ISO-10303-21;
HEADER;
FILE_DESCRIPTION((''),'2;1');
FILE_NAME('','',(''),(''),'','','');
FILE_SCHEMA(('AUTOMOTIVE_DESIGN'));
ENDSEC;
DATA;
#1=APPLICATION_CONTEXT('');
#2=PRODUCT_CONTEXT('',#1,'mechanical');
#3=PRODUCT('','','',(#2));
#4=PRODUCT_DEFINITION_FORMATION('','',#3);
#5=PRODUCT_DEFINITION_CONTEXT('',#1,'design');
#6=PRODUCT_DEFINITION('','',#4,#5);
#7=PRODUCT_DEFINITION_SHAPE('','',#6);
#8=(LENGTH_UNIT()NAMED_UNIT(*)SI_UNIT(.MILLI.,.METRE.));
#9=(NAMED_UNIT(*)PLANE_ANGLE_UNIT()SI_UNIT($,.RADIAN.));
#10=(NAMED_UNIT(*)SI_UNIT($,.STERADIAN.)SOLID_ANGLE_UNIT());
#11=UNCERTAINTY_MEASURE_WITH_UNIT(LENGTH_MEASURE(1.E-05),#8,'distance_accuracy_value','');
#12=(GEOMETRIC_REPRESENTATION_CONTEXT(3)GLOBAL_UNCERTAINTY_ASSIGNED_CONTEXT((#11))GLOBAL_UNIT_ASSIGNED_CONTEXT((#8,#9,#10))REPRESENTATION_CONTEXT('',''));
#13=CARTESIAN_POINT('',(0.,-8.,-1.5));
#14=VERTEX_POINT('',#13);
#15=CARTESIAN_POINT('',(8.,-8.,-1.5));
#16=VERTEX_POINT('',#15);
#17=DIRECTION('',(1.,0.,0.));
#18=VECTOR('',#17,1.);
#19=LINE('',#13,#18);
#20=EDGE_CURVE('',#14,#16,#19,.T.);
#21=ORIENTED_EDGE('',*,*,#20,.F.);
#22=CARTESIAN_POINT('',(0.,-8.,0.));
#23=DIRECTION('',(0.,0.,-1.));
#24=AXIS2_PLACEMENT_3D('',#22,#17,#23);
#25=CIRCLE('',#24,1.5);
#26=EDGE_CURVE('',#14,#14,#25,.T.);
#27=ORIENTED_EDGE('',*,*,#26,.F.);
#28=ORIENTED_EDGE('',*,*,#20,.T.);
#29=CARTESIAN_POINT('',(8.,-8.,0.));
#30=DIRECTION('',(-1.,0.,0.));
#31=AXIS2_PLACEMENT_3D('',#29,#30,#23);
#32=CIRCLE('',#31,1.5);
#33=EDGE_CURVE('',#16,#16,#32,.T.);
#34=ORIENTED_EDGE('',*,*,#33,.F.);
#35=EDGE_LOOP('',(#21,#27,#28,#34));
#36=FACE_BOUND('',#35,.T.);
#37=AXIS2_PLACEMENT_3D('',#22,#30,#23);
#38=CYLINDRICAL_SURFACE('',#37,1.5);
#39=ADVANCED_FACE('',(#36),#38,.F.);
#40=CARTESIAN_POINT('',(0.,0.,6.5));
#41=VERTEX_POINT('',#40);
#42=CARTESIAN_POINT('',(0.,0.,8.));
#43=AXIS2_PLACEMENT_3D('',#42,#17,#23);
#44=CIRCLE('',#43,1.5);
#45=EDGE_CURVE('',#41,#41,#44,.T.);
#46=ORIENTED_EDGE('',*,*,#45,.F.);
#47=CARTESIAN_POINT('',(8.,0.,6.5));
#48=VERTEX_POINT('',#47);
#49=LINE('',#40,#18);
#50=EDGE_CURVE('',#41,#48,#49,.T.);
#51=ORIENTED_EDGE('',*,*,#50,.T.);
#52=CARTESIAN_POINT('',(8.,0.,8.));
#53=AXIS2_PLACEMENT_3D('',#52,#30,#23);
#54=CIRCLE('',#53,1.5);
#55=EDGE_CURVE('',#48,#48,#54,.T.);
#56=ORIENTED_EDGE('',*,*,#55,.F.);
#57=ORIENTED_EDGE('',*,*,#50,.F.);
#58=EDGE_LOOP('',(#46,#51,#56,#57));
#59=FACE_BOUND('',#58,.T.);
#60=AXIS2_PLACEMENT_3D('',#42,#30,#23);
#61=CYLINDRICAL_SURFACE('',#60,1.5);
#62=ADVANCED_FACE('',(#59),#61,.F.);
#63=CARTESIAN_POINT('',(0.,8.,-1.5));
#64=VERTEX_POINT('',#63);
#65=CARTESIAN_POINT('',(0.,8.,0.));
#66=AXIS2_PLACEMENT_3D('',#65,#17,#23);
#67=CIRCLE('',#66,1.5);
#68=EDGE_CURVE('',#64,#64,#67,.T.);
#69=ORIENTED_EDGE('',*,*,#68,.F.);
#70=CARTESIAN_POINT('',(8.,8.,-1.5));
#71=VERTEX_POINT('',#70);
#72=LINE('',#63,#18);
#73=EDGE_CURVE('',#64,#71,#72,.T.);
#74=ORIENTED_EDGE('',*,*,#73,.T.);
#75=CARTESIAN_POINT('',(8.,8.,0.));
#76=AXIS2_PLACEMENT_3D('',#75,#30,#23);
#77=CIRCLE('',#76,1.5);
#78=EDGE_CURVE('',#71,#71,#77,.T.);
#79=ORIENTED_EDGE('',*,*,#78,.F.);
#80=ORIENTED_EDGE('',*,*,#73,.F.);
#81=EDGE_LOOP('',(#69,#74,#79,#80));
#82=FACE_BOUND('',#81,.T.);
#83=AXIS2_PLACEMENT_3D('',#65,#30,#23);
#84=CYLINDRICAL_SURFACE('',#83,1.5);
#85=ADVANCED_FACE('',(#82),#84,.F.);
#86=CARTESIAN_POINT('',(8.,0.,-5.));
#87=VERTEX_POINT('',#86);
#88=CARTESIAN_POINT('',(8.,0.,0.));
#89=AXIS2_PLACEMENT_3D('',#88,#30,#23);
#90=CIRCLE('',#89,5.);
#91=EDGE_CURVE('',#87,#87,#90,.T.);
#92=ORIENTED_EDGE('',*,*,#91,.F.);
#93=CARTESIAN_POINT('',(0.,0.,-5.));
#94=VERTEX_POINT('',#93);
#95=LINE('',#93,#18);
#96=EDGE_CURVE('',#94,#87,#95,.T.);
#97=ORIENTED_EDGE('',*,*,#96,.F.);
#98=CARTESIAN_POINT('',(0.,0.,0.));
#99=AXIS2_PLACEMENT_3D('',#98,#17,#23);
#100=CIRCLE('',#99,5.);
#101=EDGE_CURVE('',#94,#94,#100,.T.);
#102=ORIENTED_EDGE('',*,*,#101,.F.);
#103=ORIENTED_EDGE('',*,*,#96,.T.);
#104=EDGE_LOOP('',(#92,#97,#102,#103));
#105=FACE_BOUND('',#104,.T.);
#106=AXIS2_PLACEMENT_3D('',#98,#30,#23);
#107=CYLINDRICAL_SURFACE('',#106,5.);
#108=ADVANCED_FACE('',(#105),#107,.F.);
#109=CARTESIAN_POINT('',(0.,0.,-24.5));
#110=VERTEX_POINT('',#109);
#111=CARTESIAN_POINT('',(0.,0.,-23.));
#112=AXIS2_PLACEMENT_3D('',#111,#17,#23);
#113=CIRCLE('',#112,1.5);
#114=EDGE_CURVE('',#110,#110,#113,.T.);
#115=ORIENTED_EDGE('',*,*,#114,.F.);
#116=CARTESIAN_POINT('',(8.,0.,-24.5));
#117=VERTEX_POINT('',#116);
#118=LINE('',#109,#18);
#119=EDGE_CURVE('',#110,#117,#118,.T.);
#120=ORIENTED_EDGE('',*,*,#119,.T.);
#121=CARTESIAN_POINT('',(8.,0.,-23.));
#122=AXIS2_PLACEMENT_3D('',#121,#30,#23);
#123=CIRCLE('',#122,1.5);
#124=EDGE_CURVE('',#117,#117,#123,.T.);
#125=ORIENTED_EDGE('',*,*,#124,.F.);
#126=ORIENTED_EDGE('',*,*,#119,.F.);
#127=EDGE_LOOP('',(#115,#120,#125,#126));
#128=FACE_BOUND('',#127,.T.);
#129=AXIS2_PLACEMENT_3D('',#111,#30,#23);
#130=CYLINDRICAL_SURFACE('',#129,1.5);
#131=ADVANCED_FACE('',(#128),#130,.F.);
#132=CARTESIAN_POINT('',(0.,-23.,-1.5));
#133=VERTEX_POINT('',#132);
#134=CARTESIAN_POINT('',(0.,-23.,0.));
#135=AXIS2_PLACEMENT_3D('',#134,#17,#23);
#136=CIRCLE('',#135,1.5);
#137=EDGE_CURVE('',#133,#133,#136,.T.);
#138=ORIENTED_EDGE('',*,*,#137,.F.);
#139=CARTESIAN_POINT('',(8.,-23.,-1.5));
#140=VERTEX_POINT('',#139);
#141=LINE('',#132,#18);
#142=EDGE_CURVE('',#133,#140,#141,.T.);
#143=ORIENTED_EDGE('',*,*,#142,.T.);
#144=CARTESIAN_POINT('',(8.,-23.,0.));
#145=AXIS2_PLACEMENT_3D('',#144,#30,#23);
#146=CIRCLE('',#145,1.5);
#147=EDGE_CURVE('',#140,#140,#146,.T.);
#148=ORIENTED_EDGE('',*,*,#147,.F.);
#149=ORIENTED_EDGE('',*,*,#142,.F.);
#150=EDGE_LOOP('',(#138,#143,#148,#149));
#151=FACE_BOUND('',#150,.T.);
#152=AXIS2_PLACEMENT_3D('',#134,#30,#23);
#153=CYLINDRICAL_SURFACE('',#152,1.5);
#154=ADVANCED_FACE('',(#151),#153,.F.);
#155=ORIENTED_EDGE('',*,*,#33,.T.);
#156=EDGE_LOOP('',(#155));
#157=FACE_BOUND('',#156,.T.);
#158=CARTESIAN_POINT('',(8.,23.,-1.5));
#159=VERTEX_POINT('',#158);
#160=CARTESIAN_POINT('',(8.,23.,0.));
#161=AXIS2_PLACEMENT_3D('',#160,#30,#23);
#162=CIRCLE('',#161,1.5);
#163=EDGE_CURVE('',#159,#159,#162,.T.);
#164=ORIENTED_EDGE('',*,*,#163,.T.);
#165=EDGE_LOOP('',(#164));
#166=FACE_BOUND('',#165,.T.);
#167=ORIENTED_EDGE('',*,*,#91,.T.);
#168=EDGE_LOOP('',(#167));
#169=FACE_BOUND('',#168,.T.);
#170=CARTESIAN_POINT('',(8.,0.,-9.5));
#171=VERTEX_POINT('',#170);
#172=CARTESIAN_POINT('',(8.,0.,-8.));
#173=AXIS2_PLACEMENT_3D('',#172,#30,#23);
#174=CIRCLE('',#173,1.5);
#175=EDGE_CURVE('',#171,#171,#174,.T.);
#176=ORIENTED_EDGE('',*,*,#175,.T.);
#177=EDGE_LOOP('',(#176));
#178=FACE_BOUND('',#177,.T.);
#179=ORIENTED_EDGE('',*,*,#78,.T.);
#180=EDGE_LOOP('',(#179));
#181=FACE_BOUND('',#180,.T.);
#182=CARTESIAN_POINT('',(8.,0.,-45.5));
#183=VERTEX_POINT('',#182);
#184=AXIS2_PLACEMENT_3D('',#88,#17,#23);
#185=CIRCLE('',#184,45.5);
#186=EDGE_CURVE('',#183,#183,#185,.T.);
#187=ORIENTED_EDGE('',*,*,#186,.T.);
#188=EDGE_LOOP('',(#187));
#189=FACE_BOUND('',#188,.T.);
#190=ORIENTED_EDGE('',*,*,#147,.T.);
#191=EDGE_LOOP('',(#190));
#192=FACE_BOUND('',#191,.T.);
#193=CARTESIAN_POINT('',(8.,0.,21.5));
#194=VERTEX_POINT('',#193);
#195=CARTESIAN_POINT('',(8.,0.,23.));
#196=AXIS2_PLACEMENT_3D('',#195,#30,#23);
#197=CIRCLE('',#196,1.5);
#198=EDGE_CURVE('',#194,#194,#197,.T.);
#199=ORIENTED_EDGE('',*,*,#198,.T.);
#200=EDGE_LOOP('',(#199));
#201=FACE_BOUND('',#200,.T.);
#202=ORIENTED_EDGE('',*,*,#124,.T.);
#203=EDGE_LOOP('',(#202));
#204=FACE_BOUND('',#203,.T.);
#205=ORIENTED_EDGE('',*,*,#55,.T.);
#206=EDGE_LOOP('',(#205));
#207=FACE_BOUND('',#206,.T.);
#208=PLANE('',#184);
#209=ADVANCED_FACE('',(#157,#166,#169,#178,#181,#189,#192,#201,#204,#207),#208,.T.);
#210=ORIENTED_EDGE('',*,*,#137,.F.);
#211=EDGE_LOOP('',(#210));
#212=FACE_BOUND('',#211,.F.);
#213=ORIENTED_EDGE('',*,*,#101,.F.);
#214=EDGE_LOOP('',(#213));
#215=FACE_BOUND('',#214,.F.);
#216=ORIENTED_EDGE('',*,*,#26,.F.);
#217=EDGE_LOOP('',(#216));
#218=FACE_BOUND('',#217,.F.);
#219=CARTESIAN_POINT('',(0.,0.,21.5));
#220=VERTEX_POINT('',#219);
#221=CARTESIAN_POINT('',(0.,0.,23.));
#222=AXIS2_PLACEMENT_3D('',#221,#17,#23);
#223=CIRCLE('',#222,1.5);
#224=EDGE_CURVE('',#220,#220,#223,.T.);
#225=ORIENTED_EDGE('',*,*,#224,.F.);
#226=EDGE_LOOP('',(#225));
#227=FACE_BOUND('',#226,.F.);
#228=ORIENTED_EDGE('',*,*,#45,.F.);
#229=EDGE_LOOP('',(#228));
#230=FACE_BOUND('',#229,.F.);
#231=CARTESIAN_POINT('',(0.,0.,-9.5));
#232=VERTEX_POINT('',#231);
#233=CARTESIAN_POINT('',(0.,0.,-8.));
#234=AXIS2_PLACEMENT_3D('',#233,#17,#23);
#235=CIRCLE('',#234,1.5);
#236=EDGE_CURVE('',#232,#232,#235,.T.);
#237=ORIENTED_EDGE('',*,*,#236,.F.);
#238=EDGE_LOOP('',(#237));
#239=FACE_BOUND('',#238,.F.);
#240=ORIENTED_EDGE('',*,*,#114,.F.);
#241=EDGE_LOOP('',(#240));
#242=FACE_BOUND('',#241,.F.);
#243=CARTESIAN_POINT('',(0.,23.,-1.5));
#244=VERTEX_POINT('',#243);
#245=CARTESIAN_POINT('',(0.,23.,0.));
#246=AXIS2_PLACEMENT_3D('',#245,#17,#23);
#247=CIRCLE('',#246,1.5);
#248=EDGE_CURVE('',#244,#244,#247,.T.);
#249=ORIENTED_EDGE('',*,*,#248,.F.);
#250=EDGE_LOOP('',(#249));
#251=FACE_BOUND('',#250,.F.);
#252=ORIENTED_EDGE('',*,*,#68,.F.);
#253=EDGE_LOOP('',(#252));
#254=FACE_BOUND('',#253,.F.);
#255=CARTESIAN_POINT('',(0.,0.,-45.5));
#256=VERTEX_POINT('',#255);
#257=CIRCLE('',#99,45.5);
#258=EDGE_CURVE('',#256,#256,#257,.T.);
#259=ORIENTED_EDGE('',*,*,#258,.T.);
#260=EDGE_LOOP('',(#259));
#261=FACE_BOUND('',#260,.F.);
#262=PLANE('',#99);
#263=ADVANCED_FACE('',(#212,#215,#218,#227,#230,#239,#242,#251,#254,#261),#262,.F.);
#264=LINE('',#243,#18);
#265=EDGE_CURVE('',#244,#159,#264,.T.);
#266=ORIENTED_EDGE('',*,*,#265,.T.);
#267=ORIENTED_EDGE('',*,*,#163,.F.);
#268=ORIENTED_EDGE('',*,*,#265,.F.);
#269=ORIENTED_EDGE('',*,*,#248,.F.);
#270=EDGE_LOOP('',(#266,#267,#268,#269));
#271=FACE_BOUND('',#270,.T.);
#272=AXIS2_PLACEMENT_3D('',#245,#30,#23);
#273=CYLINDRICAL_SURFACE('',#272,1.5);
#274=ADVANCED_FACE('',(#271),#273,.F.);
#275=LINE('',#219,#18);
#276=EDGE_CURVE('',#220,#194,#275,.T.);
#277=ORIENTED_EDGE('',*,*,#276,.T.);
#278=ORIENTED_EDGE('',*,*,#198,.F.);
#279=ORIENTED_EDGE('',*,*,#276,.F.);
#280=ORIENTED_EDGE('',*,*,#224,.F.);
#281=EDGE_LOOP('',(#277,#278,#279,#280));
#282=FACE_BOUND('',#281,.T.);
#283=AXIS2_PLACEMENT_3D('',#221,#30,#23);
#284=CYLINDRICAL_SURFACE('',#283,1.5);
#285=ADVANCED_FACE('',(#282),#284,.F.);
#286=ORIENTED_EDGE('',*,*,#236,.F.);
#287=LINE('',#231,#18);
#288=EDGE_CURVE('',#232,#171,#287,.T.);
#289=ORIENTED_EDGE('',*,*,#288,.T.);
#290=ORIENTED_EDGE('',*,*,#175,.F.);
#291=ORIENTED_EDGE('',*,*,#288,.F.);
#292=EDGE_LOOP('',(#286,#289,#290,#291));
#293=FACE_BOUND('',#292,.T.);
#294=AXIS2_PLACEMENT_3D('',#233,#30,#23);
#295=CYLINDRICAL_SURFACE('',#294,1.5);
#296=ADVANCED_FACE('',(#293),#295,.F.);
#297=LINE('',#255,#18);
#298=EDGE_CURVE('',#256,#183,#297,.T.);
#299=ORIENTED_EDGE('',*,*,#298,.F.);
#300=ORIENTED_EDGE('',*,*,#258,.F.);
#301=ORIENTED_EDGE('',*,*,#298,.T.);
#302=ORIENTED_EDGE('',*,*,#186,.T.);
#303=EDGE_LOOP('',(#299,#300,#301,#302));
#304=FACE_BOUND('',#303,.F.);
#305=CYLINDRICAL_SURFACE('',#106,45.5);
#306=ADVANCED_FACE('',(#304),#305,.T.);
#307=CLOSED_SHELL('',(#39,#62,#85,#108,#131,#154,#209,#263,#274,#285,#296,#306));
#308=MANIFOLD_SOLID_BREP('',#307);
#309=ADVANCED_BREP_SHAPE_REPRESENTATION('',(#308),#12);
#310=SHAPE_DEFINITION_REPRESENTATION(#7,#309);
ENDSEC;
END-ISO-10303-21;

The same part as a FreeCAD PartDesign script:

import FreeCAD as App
import Part
import Sketcher

V = App.Vector
Q = App.Units.Quantity

doc = App.newDocument("Part")
body = doc.addObject("PartDesign::Body", "Body")

# Sketch on YZ plane
sketch1 = body.newObject("Sketcher::SketchObject", "Sketch")
sketch1.AttachmentSupport = (doc.getObject("YZ_Plane"), [""])
sketch1.MapMode = "FlatFace"
sketch1.addGeometry(Part.Circle(V(0, 0, 0), V(0, 0, 1), 46), False)
sketch1.addConstraint(Sketcher.Constraint("Coincident", 0, 3, -1, 1))
sketch1.addConstraint(Sketcher.Constraint("Diameter", 0, Q("91 mm")))
pad1 = body.newObject("PartDesign::Pad", "Pad")
pad1.Profile = sketch1
pad1.Length = 8

# Sketch on YZ plane
sketch2 = body.newObject("Sketcher::SketchObject", "Sketch001")
sketch2.AttachmentSupport = (doc.getObject("YZ_Plane"), [""])
sketch2.MapMode = "FlatFace"
sketch2.addGeometry(Part.Circle(V(0, 0, 0), V(0, 0, 1), 5), False)
sketch2.addGeometry(Part.Circle(V(23, 0, 0), V(0, 0, 1), 1.5), False)
sketch2.addGeometry(Part.Circle(V(0, -8, 0), V(0, 0, 1), 1.5), False)
sketch2.addGeometry(Part.Circle(V(8, 0, 0), V(0, 0, 1), 1.5), False)
sketch2.addGeometry(Part.Circle(V(0, -23, 0), V(0, 0, 1), 1.5), False)
sketch2.addGeometry(Part.Circle(V(-8, 0, 0), V(0, 0, 1), 1.5), False)
sketch2.addGeometry(Part.Circle(V(-23, 0, 0), V(0, 0, 1), 1.5), False)
sketch2.addGeometry(Part.Circle(V(0, 8, 0), V(0, 0, 1), 1.5), False)
sketch2.addGeometry(Part.Circle(V(0, 23, 0), V(0, 0, 1), 1.5), False)
sketch2.addConstraint(Sketcher.Constraint("Coincident", 0, 3, -1, 1))
sketch2.addConstraint(Sketcher.Constraint("Equal", 1, 2))
sketch2.addConstraint(Sketcher.Constraint("Equal", 2, 3))
sketch2.addConstraint(Sketcher.Constraint("Equal", 3, 4))
sketch2.addConstraint(Sketcher.Constraint("Equal", 4, 5))
sketch2.addConstraint(Sketcher.Constraint("Equal", 5, 6))
sketch2.addConstraint(Sketcher.Constraint("Equal", 6, 7))
sketch2.addConstraint(Sketcher.Constraint("Equal", 7, 8))
sketch2.addConstraint(Sketcher.Constraint("Symmetric", 3, 3, 5, 3, -1, 1))
sketch2.addConstraint(Sketcher.Constraint("Symmetric", 1, 3, 6, 3, -1, 1))
sketch2.addConstraint(Sketcher.Constraint("Symmetric", 2, 3, 7, 3, -1, 1))
sketch2.addConstraint(Sketcher.Constraint("Symmetric", 4, 3, 8, 3, -1, 1))
sketch2.addConstraint(Sketcher.Constraint("PointOnObject", 1, 3, -1))
sketch2.addConstraint(Sketcher.Constraint("PointOnObject", 2, 3, -2))
sketch2.addConstraint(Sketcher.Constraint("PointOnObject", 3, 3, -1))
sketch2.addConstraint(Sketcher.Constraint("PointOnObject", 4, 3, -2))
sketch2.addConstraint(Sketcher.Constraint("Diameter", 0, Q("10 mm")))
sketch2.addConstraint(Sketcher.Constraint("Diameter", 1, Q("3 mm")))
sketch2.addConstraint(Sketcher.Constraint("DistanceX", -1, 1, 1, 3, Q("23 mm")))
sketch2.addConstraint(Sketcher.Constraint("DistanceY", 2, 3, -1, 1, Q("8 mm")))
sketch2.addConstraint(Sketcher.Constraint("DistanceX", -1, 1, 3, 3, Q("8 mm")))
sketch2.addConstraint(Sketcher.Constraint("DistanceY", 4, 3, -1, 1, Q("23 mm")))
pocket1 = body.newObject("PartDesign::Pocket", "Pocket")
pocket1.Profile = sketch2
pocket1.Type = "ThroughAll"
pocket1.Reversed = True

doc.recompute()
